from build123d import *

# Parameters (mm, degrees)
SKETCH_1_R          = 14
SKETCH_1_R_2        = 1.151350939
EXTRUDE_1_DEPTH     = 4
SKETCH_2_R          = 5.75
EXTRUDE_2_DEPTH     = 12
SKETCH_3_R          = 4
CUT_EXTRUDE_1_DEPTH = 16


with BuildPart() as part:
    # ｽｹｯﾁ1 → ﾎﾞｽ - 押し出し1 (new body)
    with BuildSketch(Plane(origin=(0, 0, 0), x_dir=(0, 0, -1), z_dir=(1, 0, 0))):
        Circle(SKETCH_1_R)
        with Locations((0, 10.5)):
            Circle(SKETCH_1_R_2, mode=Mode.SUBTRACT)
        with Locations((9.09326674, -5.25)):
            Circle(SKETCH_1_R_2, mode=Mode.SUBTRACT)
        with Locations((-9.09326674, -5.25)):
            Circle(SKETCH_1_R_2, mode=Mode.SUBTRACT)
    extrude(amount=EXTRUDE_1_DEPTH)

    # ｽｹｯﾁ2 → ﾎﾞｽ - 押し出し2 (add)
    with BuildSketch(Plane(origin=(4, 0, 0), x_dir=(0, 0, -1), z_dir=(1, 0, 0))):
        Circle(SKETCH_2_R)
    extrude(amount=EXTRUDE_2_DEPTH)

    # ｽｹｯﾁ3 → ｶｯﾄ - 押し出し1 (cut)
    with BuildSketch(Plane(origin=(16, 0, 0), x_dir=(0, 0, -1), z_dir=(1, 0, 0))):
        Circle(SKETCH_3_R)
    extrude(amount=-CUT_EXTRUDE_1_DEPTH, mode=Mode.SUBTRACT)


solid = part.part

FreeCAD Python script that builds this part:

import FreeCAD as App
import Part
import Sketcher
from FreeCAD import Vector

doc = App.newDocument("Part")
body = doc.addObject("PartDesign::Body", "Body")

sketch1 = body.newObject("Sketcher::SketchObject", "Sketch")
sketch1.AttachmentSupport = (doc.getObject("YZ_Plane"), [""])
sketch1.MapMode = "FlatFace"
sketch1.addGeometry([
    Part.Circle(Vector(0, 0, 0), Vector(0, 0, 1), 14),
    Part.Circle(Vector(-5.25, 9.093267, 0), Vector(0, 0, 1), 1.151351),
    Part.Circle(Vector(-5.25, -9.093267, 0), Vector(0, 0, 1), 1.151351),
    Part.Circle(Vector(10.5, 0, 0), Vector(0, 0, 1), 1.151351),
], False)
sketch1.addConstraint([
    Sketcher.Constraint("Coincident", 0, 3, -1, 1),
    Sketcher.Constraint("Equal", 1, 2),
    Sketcher.Constraint("Equal", 2, 3),
    Sketcher.Constraint("Symmetric", 1, 3, 2, 3, -1),
    Sketcher.Constraint("PointOnObject", 3, 3, -1),
    Sketcher.Constraint("Diameter", 0, 28.0),
    Sketcher.Constraint("Diameter", 1, 2.302702),
    Sketcher.Constraint("DistanceX", -1, 1, 3, 3, 10.5),
    Sketcher.Constraint("DistanceX", 1, 3, -1, 1, 5.25),
    Sketcher.Constraint("DistanceY", -1, 1, 1, 3, 9.093267),
])
pad1 = body.newObject("PartDesign::Pad", "Pad")
pad1.Profile = sketch1
pad1.Length = 4

sketch2 = body.newObject("Sketcher::SketchObject", "Sketch001")
sketch2.AttachmentSupport = (doc.getObject("YZ_Plane"), [""])
sketch2.MapMode = "FlatFace"
sketch2.AttachmentOffset = App.Placement(Vector(0, 0, 4), App.Rotation())
sketch2.addGeometry(Part.Circle(Vector(0, 0, 0), Vector(0, 0, 1), 5.75), False)
sketch2.addConstraint([
    Sketcher.Constraint("Coincident", 0, 3, -1, 1),
    Sketcher.Constraint("Diameter", 0, 11.5),
])
pad2 = body.newObject("PartDesign::Pad", "Pad001")
pad2.Profile = sketch2
pad2.Length = 12

sketch3 = body.newObject("Sketcher::SketchObject", "Sketch002")
sketch3.AttachmentSupport = (doc.getObject("YZ_Plane"), [""])
sketch3.MapMode = "FlatFace"
sketch3.AttachmentOffset = App.Placement(Vector(0, 0, 16), App.Rotation())
sketch3.addGeometry(Part.Circle(Vector(0, 0, 0), Vector(0, 0, 1), 4), False)
sketch3.addConstraint([
    Sketcher.Constraint("Coincident", 0, 3, -1, 1),
    Sketcher.Constraint("Diameter", 0, 8.0),
])
pocket1 = body.newObject("PartDesign::Pocket", "Pocket")
pocket1.Profile = sketch3
pocket1.Length = 16

doc.recompute()
